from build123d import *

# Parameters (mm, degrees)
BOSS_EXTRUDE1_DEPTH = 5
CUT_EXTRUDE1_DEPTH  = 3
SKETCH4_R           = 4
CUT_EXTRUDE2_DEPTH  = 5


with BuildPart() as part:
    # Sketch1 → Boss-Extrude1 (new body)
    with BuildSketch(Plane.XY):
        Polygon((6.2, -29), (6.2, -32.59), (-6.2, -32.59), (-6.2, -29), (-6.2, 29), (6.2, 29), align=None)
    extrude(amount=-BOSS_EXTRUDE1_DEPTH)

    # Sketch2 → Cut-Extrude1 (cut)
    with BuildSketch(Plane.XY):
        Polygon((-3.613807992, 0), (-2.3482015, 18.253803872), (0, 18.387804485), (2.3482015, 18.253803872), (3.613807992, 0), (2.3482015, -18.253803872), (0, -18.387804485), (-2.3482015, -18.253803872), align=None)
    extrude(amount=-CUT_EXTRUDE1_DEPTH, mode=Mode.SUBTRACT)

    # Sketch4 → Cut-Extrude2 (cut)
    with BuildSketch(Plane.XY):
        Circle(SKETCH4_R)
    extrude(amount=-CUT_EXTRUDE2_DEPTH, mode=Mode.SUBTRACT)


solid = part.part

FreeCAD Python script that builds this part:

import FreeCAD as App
import Part
import Sketcher
from FreeCAD import Vector


def add_polygon(sketch, points):
    """Adds a closed chain of lines whose ends are joined by coincident constraints."""
    first, n = sketch.GeometryCount, len(points)
    for a, b in zip(points, points[1:] + points[:1]):
        sketch.addGeometry(Part.LineSegment(App.Vector(*a, 0), App.Vector(*b, 0)), False)
    for i in range(n):
        sketch.addConstraint(Sketcher.Constraint("Coincident", first + i, 2, first + (i + 1) % n, 1))

doc = App.newDocument("Part")
params = doc.addObject("Spreadsheet::Sheet", "Params")
for row, (alias, value) in enumerate([
    ("sketch1_width", "12.4 mm"),
    ("sketch1_height", "61.59 mm"),
    ("pad1_length", "5 mm"),
    ("pocket1_length", "3 mm"),
    ("sketch3_diameter", "8 mm"),
    ("pocket2_length", "5 mm"),
], start=1):
    params.set(f"A{row}", alias)
    params.set(f"B{row}", "=" + value)
    params.setAlias(f"B{row}", alias)

body = doc.addObject("PartDesign::Body", "Body")

# Sketch on XY plane
sketch1 = body.newObject("Sketcher::SketchObject", "Sketch")
sketch1.AttachmentSupport = (doc.getObject("XY_Plane"), [""])
sketch1.MapMode = "FlatFace"
add_polygon(sketch1, [(6, -33), (6, 29), (-6, 29), (-6, -33)])  # lines 0-3
sketch1.addConstraint(Sketcher.Constraint("Vertical", 0))
sketch1.addConstraint(Sketcher.Constraint("Horizontal", 1))
sketch1.addConstraint(Sketcher.Constraint("Vertical", 2))
sketch1.addConstraint(Sketcher.Constraint("Horizontal", 3))
sketch1.addConstraint(Sketcher.Constraint("DistanceX", 1, 2, 1, 1, 12.4))
sketch1.addConstraint(Sketcher.Constraint("DistanceY", -1, 1, 0, 2, 29.0))
sketch1.addConstraint(Sketcher.Constraint("DistanceY", 0, 1, 0, 2, 61.59))
sketch1.addConstraint(Sketcher.Constraint("DistanceX", -1, 1, 0, 2, 6.2))
sketch1.setExpression("Constraints[8]", "Params.sketch1_width")
sketch1.setExpression("Constraints[10]", "Params.sketch1_height")
pad1 = body.newObject("PartDesign::Pad", "Pad")
pad1.Profile = sketch1
pad1.setExpression("Length", "Params.pad1_length")
pad1.Reversed = True

# Sketch on XY plane
sketch2 = body.newObject("Sketcher::SketchObject", "Sketch001")
sketch2.AttachmentSupport = (doc.getObject("XY_Plane"), [""])
sketch2.MapMode = "FlatFace"
add_polygon(sketch2, [(-2.3, 18.3), (-3.6, 0), (-2.3, -18.3), (0, -18.4), (2.3, -18.3), (3.6, 0), (2.3, 18.3), (0, 18.4)])  # lines 0-7
sketch2.addConstraint(Sketcher.Constraint("Symmetric", 0, 2, 4, 2, -1, 1))
sketch2.addConstraint(Sketcher.Constraint("Symmetric", 1, 2, 5, 2, -1, 1))
sketch2.addConstraint(Sketcher.Constraint("Symmetric", 2, 2, 6, 2, -1, 1))
sketch2.addConstraint(Sketcher.Constraint("Symmetric", 3, 2, 7, 2, -1, 1))
sketch2.addConstraint(Sketcher.Constraint("Symmetric", 1, 2, 3, 2, -2))
sketch2.addConstraint(Sketcher.Constraint("PointOnObject", 0, 2, -1))
sketch2.addConstraint(Sketcher.Constraint("PointOnObject", 2, 2, -2))
sketch2.addConstraint(Sketcher.Constraint("DistanceY", 2, 2, 1, 2, 0.134001))
sketch2.addConstraint(Sketcher.Constraint("DistanceX", 1, 2, -1, 1, 2.348202))
sketch2.addConstraint(Sketcher.Constraint("DistanceX", 0, 2, 3, 2, 5.962009))
sketch2.addConstraint(Sketcher.Constraint("DistanceY", 2, 2, 5, 2, 36.641608))
pocket1 = body.newObject("PartDesign::Pocket", "Pocket")
pocket1.Profile = sketch2
pocket1.setExpression("Length", "Params.pocket1_length")

# Sketch on XY plane
sketch3 = body.newObject("Sketcher::SketchObject", "Sketch002")
sketch3.AttachmentSupport = (doc.getObject("XY_Plane"), [""])
sketch3.MapMode = "FlatFace"
sketch3.addGeometry(Part.Circle(Vector(0, 0, 0), Vector(0, 0, 1), 4), False)
sketch3.addConstraint(Sketcher.Constraint("Coincident", 0, 3, -1, 1))
sketch3.addConstraint(Sketcher.Constraint("Diameter", 0, 8.0))
sketch3.setExpression("Constraints[1]", "Params.sketch3_diameter")
pocket2 = body.newObject("PartDesign::Pocket", "Pocket001")
pocket2.Profile = sketch3
pocket2.setExpression("Length", "Params.pocket2_length")

doc.recompute()
